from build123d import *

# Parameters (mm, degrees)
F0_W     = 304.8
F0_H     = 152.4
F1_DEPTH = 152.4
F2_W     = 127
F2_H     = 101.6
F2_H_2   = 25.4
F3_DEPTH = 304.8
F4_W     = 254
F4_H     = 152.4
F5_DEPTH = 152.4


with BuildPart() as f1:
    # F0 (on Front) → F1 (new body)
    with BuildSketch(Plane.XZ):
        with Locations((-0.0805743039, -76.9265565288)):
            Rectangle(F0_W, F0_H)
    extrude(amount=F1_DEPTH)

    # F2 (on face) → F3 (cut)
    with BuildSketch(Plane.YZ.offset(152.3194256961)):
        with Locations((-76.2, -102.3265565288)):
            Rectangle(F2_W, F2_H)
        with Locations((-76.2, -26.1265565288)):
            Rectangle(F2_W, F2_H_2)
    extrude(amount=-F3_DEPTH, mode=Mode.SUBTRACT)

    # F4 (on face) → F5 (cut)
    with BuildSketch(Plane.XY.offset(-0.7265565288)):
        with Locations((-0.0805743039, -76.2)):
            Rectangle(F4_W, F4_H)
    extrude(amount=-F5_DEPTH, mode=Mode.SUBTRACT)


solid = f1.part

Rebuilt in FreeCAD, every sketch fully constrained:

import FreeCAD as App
import Part
import Sketcher
Q = App.Units.Quantity


def add_polygon(sketch, points):
    """Adds a closed chain of lines whose ends are joined by coincident constraints."""
    first, n = sketch.GeometryCount, len(points)
    for a, b in zip(points, points[1:] + points[:1]):
        sketch.addGeometry(Part.LineSegment(App.Vector(*a, 0), App.Vector(*b, 0)), False)
    for i in range(n):
        sketch.addConstraint(Sketcher.Constraint("Coincident", first + i, 2, first + (i + 1) % n, 1))

doc = App.newDocument("Part")
body = doc.addObject("PartDesign::Body", "Body")
body.AllowCompound = True

sketch1 = doc.addObject("Sketcher::SketchObject", "Sketch")
body.addObject(sketch1)
sketch1.AttachmentSupport = (doc.XZ_Plane, [""])
sketch1.MapMode = "FlatFace"
add_polygon(sketch1, [(-152.480574, -0.726557), (-152.480574, -153.126557), (152.319426, -153.126557), (152.319426, -0.726557)])
sketch1.addConstraint([
    Sketcher.Constraint("Vertical", 0),
    Sketcher.Constraint("Horizontal", 1),
    Sketcher.Constraint("Vertical", 2),
    Sketcher.Constraint("Horizontal", 3),
    Sketcher.Constraint("DistanceX", 1, 1, 1, 2, Q("12 in")),
    Sketcher.Constraint("DistanceY", 0, 2, 0, 1, Q("6 in")),
    Sketcher.Constraint("DistanceX", 0, 2, -1, 1, Q("152.480574 mm")),
    Sketcher.Constraint("DistanceY", 0, 2, -1, 1, Q("153.126557 mm")),
])
pad1 = doc.addObject("PartDesign::Pad", "Pad")
body.addObject(pad1)
pad1.Profile = sketch1
pad1.Length = Q("6 in")

sketch2 = doc.addObject("Sketcher::SketchObject", "Sketch001")
body.addObject(sketch2)
sketch2.AttachmentSupport = (doc.YZ_Plane, [""])
sketch2.MapMode = "FlatFace"
sketch2.AttachmentOffset = App.Placement(App.Vector(0, 0, 152.319426), App.Rotation())
add_polygon(sketch2, [(-139.7, -51.526557), (-139.7, -153.126557), (-12.7, -153.126557), (-12.7, -51.526557)])
add_polygon(sketch2, [(-139.7, -13.426557), (-139.7, -38.826557), (-12.7, -38.826557), (-12.7, -13.426557)])
sketch2.addConstraint([
    Sketcher.Constraint("Vertical", 0),
    Sketcher.Constraint("Horizontal", 1),
    Sketcher.Constraint("Vertical", 2),
    Sketcher.Constraint("Horizontal", 3),
    Sketcher.Constraint("Vertical", 4),
    Sketcher.Constraint("Horizontal", 5),
    Sketcher.Constraint("Vertical", 6),
    Sketcher.Constraint("Horizontal", 7),
    Sketcher.Constraint("Vertical", 3, 2, 4, 2),
    Sketcher.Constraint("Vertical", 2, 2, 5, 2),
    Sketcher.Constraint("DistanceX", 1, 1, 1, 2, Q("5 in")),
    Sketcher.Constraint("DistanceY", 0, 2, 0, 1, Q("4 in")),
    Sketcher.Constraint("DistanceY", 4, 2, 4, 1, Q("1 in")),
    Sketcher.Constraint("DistanceX", 0, 2, -1, 1, Q("5.5 in")),
    Sketcher.Constraint("DistanceY", 3, 2, 4, 2, Q("0.5 in")),
    Sketcher.Constraint("DistanceY", 0, 2, -1, 1, Q("153.126557 mm")),
])
pocket1 = doc.addObject("PartDesign::Pocket", "Pocket")
body.addObject(pocket1)
pocket1.Profile = sketch2
pocket1.Length = Q("12 in")

sketch3 = doc.addObject("Sketcher::SketchObject", "Sketch002")
body.addObject(sketch3)
sketch3.AttachmentSupport = (doc.XY_Plane, [""])
sketch3.MapMode = "FlatFace"
sketch3.AttachmentOffset = App.Placement(App.Vector(0, 0, -0.726557), App.Rotation())
add_polygon(sketch3, [(-127.080574, 0), (-127.080574, -152.4), (126.919426, -152.4), (126.919426, 0)])
sketch3.addConstraint([
    Sketcher.Constraint("Vertical", 0),
    Sketcher.Constraint("Horizontal", 1),
    Sketcher.Constraint("Vertical", 2),
    Sketcher.Constraint("Horizontal", 3),
    Sketcher.Constraint("PointOnObject", 2, 2, -1),
    Sketcher.Constraint("DistanceX", 1, 1, 1, 2, Q("10 in")),
    Sketcher.Constraint("DistanceY", 0, 2, 0, 1, Q("6 in")),
    Sketcher.Constraint("DistanceX", 0, 2, -1, 1, Q("127.080574 mm")),
])
pocket2 = doc.addObject("PartDesign::Pocket", "Pocket001")
body.addObject(pocket2)
pocket2.Profile = sketch3
pocket2.Length = Q("6 in")

doc.recompute()
